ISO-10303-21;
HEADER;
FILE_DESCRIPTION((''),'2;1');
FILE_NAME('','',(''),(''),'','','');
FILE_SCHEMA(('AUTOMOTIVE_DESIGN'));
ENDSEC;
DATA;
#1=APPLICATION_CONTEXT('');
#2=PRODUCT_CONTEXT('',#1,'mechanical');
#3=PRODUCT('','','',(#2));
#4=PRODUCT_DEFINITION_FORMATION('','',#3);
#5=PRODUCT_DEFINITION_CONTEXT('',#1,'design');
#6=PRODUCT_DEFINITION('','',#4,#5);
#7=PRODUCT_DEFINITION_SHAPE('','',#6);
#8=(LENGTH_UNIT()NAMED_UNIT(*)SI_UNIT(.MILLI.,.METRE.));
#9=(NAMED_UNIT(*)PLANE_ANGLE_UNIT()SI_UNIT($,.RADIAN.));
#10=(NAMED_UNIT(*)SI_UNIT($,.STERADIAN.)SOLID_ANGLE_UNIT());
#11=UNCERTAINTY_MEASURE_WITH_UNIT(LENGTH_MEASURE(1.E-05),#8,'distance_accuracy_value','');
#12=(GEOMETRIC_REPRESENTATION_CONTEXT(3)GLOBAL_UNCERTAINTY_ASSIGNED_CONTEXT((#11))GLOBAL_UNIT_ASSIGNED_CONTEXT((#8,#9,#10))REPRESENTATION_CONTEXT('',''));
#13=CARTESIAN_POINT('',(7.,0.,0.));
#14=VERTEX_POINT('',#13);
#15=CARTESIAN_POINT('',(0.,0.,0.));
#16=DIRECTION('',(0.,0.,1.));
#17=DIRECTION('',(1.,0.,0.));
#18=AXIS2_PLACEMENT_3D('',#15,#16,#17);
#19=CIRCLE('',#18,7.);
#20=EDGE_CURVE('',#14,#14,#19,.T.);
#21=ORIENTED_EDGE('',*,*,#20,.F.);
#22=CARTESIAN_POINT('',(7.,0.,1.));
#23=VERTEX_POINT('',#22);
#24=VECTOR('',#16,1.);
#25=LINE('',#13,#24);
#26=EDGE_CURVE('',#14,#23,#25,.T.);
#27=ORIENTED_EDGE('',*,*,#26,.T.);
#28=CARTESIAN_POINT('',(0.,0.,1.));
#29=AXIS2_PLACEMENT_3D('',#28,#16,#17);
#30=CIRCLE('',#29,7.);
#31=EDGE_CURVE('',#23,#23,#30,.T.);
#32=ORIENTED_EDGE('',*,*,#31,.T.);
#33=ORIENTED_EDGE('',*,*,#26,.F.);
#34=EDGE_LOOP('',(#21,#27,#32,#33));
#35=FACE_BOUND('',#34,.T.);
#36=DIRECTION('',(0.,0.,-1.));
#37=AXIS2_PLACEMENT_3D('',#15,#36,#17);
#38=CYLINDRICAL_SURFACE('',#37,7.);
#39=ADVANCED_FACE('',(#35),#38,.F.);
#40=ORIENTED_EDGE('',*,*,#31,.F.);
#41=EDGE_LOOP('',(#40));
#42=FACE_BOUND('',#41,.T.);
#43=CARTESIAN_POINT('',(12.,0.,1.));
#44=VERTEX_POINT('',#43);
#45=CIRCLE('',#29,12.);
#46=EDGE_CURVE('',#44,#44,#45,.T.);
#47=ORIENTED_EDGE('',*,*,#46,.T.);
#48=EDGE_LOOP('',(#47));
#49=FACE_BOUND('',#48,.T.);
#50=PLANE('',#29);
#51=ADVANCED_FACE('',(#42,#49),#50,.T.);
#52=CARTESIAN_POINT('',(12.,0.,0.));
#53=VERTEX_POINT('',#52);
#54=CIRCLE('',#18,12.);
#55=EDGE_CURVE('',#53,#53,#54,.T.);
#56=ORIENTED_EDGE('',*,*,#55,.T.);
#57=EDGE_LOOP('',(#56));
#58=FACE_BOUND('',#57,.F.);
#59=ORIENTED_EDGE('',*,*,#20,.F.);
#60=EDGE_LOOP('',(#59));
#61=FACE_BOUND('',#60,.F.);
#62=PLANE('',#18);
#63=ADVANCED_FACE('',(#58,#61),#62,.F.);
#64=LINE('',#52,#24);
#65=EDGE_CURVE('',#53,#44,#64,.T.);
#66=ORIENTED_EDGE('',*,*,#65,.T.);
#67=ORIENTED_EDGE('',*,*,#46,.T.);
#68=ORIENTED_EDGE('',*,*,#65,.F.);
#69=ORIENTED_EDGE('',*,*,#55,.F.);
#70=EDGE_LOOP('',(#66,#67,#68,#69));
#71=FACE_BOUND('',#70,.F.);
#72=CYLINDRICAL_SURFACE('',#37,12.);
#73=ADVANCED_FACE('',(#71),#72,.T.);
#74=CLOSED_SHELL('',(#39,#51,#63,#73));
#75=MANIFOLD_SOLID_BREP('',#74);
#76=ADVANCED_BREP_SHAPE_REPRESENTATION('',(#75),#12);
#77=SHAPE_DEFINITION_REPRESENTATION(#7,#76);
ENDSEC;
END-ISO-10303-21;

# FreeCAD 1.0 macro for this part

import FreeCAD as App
import Part
import Sketcher

doc = App.newDocument("Part")
body = doc.addObject("PartDesign::Body", "Body")

sketch1 = body.newObject("Sketcher::SketchObject", "Sketch")
sketch1.AttachmentSupport = (doc.getObject("XY_Plane"), [""])
sketch1.MapMode = "FlatFace"
sketch1.addGeometry(Part.Circle(App.Vector(0, 0, 0), App.Vector(0, 0, 1), 12), False)
sketch1.addGeometry(Part.Circle(App.Vector(0, 0, 0), App.Vector(0, 0, 1), 7), False)
sketch1.addConstraint(Sketcher.Constraint("Coincident", 0, 3, -1, 1))
sketch1.addConstraint(Sketcher.Constraint("Coincident", 1, 3, -1, 1))
sketch1.addConstraint(Sketcher.Constraint("Diameter", 0, 24.0))
sketch1.addConstraint(Sketcher.Constraint("Diameter", 1, 14.0))
pad1 = body.newObject("PartDesign::Pad", "Pad")
pad1.Profile = sketch1
pad1.Length = 1

doc.recompute()
